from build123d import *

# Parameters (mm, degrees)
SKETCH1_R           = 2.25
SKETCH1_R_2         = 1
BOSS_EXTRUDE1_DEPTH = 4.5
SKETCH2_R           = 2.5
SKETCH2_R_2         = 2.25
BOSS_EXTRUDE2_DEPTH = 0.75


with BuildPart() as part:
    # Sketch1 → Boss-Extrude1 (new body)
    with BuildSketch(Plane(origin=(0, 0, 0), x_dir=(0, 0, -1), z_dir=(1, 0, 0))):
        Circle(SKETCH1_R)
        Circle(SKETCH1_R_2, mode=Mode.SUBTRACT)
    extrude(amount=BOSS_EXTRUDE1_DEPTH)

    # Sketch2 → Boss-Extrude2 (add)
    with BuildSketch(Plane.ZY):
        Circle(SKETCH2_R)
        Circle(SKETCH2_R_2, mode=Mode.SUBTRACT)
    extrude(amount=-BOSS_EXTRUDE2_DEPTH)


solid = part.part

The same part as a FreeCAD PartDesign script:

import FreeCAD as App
import Part
import Sketcher
from FreeCAD import Vector
Q = App.Units.Quantity

doc = App.newDocument("Part")
body = doc.addObject("PartDesign::Body", "Body")

sketch1 = body.newObject("Sketcher::SketchObject", "Sketch")
sketch1.AttachmentSupport = (doc.getObject("YZ_Plane"), [""])
sketch1.MapMode = "FlatFace"
sketch1.addGeometry([
    Part.Circle(Vector(0, 0, 0), Vector(0, 0, 1), 2.2),
    Part.Circle(Vector(0, 0, 0), Vector(0, 0, 1), 1),
], False)
sketch1.addConstraint([
    Sketcher.Constraint("Coincident", 0, 3, -1, 1),
    Sketcher.Constraint("Coincident", 1, 3, -1, 1),
    Sketcher.Constraint("Diameter", 1, Q("2 mm")),
    Sketcher.Constraint("Diameter", 0, Q("4.5 mm")),
])
pad1 = body.newObject("PartDesign::Pad", "Pad")
pad1.Profile = sketch1
pad1.Length = 4.5

sketch2 = body.newObject("Sketcher::SketchObject", "Sketch001")
sketch2.AttachmentSupport = (doc.getObject("YZ_Plane"), [""])
sketch2.MapMode = "FlatFace"
sketch2.addGeometry([
    Part.Circle(Vector(0, 0, 0), Vector(0, 0, 1), 2.5),
    Part.Circle(Vector(0, 0, 0), Vector(0, 0, 1), 2.2),
], False)
sketch2.addConstraint([
    Sketcher.Constraint("Coincident", 0, 3, -1, 1),
    Sketcher.Constraint("Coincident", 1, 3, -1, 1),
    Sketcher.Constraint("Diameter", 0, Q("5 mm")),
    Sketcher.Constraint("Diameter", 1, Q("4.5 mm")),
])
pad2 = body.newObject("PartDesign::Pad", "Pad001")
pad2.Profile = sketch2
pad2.Length = 0.75

doc.recompute()
